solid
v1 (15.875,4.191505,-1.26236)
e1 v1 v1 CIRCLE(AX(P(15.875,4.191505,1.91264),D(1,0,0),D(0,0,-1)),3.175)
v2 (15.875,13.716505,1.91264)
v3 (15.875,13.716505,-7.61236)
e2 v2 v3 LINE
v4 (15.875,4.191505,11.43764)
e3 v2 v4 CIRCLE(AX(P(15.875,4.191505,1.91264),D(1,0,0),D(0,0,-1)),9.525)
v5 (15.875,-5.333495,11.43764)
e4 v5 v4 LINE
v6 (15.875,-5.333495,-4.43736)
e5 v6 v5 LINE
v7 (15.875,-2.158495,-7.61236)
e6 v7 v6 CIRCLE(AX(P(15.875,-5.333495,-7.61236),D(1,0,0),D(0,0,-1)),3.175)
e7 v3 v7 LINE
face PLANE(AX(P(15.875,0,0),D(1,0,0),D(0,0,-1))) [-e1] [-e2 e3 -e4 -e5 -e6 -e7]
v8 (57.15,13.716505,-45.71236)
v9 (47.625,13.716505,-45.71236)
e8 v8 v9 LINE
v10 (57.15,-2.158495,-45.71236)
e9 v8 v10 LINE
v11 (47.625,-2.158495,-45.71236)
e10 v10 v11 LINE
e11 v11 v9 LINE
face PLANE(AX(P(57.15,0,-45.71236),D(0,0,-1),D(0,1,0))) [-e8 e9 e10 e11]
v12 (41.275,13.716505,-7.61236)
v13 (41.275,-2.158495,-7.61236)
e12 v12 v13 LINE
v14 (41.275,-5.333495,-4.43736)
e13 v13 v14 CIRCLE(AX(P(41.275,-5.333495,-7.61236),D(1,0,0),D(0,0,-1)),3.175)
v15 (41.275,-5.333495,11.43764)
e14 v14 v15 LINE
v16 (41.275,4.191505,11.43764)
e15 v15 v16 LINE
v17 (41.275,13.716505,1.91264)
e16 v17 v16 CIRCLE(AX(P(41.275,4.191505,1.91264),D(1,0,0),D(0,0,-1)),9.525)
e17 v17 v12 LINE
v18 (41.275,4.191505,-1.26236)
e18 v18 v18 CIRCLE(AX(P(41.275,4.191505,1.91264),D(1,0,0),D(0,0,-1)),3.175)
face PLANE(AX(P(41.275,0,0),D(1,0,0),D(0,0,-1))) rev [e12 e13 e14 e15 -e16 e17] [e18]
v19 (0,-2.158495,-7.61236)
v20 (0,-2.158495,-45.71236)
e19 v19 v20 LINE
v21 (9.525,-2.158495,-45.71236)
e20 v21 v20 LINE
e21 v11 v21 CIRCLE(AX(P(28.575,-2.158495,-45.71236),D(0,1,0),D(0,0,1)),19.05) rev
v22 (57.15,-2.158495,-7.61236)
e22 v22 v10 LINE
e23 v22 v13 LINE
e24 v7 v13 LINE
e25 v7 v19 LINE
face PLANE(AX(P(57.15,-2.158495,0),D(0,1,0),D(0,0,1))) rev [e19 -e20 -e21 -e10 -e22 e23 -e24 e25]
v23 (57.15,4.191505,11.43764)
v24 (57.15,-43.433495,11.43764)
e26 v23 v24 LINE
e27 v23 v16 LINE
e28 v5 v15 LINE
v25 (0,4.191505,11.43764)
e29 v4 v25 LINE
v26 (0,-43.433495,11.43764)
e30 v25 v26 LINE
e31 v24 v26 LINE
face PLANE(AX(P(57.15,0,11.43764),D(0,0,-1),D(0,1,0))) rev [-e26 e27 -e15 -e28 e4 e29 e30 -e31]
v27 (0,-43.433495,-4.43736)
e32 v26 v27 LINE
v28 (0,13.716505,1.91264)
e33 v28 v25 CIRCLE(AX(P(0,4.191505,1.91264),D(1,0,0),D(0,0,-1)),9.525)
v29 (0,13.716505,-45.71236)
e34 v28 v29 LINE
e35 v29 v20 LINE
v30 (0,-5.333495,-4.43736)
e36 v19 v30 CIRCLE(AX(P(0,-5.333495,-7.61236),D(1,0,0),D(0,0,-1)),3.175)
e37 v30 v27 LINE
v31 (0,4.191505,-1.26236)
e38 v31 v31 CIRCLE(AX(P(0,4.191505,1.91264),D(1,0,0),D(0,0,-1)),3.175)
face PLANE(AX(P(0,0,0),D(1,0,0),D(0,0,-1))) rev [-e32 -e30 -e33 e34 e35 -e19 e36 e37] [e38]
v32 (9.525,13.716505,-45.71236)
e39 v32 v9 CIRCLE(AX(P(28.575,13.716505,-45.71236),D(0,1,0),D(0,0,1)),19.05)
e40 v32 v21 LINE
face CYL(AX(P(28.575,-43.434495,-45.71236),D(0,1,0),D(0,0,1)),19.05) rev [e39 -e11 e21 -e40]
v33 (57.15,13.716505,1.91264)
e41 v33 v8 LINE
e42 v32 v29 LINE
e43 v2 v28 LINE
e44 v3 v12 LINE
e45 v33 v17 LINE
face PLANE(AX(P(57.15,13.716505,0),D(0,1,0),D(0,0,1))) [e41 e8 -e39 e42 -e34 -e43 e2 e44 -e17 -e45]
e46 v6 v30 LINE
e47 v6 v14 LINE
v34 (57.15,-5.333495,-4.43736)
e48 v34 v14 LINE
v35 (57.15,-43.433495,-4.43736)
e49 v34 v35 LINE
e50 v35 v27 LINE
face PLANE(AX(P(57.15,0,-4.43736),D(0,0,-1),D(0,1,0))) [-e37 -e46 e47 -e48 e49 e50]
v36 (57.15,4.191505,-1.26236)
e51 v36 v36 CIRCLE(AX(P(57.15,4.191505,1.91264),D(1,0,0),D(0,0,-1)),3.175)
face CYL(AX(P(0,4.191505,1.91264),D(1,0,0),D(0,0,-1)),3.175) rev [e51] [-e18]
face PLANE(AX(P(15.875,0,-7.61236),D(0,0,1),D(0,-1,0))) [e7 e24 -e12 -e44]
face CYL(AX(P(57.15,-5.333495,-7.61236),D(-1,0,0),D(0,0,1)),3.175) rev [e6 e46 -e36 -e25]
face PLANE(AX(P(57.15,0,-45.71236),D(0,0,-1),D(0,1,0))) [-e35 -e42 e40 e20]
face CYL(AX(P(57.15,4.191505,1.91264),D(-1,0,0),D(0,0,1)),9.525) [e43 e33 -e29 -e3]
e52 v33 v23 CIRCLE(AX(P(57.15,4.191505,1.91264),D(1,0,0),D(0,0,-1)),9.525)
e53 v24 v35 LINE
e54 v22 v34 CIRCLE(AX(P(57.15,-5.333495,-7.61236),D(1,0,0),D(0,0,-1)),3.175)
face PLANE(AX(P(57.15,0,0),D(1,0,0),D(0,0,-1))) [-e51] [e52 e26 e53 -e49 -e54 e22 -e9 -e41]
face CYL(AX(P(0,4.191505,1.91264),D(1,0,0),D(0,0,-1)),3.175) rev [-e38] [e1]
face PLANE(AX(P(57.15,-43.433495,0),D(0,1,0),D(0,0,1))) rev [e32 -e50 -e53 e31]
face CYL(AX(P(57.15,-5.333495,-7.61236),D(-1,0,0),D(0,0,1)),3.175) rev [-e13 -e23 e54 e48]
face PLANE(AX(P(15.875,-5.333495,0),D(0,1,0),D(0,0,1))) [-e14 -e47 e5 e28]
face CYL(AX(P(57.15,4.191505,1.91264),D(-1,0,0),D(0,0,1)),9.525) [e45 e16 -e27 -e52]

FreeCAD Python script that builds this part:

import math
import FreeCAD as App
import Part
import Sketcher
Q = App.Units.Quantity

doc = App.newDocument("Part")
body = doc.addObject("PartDesign::Body", "Body")

sketch1 = body.newObject("Sketcher::SketchObject", "Sketch")
sketch1.AttachmentSupport = (doc.getObject("YZ_Plane"), [""])
sketch1.MapMode = "FlatFace"
sketch1.addGeometry(Part.LineSegment(App.Vector(14, -46, 0), App.Vector(14, 2, 0)), False)
sketch1.addGeometry(Part.ArcOfCircle(Part.Circle(App.Vector(4, 2, 0), App.Vector(0, 0, 1), 10), math.radians(0), math.radians(90)), False)
sketch1.addGeometry(Part.LineSegment(App.Vector(4, 11, 0), App.Vector(-43, 11, 0)), False)
sketch1.addGeometry(Part.LineSegment(App.Vector(-43, 11, 0), App.Vector(-43, -4, 0)), False)
sketch1.addGeometry(Part.LineSegment(App.Vector(-43, -4, 0), App.Vector(-2, -4, 0)), False)
sketch1.addGeometry(Part.LineSegment(App.Vector(-2, -4, 0), App.Vector(-2, -46, 0)), False)
sketch1.addGeometry(Part.LineSegment(App.Vector(-2, -46, 0), App.Vector(14, -46, 0)), False)
sketch1.addConstraint(Sketcher.Constraint("Tangent", 0, 2, 1, 1))
sketch1.addConstraint(Sketcher.Constraint("Tangent", 1, 2, 2, 1))
sketch1.addConstraint(Sketcher.Constraint("Coincident", 2, 2, 3, 1))
sketch1.addConstraint(Sketcher.Constraint("Coincident", 3, 2, 4, 1))
sketch1.addConstraint(Sketcher.Constraint("Coincident", 4, 2, 5, 1))
sketch1.addConstraint(Sketcher.Constraint("Coincident", 5, 2, 6, 1))
sketch1.addConstraint(Sketcher.Constraint("Coincident", 6, 2, 0, 1))
sketch1.addConstraint(Sketcher.Constraint("Vertical", 0))
sketch1.addConstraint(Sketcher.Constraint("Horizontal", 2))
sketch1.addConstraint(Sketcher.Constraint("Vertical", 3))
sketch1.addConstraint(Sketcher.Constraint("Horizontal", 4))
sketch1.addConstraint(Sketcher.Constraint("Vertical", 5))
sketch1.addConstraint(Sketcher.Constraint("Horizontal", 6))
sketch1.addConstraint(Sketcher.Constraint("Equal", 2, 0))
sketch1.addConstraint(Sketcher.Constraint("Equal", 6, 3))
sketch1.addConstraint(Sketcher.Constraint("Radius", 1, Q("0.375 in")))
sketch1.addConstraint(Sketcher.Constraint("DistanceX", 2, 2, 2, 1, Q("1.875 in")))
sketch1.addConstraint(Sketcher.Constraint("DistanceX", 4, 1, 4, 2, Q("1.625 in")))
sketch1.addConstraint(Sketcher.Constraint("DistanceY", -1, 1, 1, 3, 1.91264))
sketch1.addConstraint(Sketcher.Constraint("DistanceX", -1, 1, 1, 3, 4.191505))
pad1 = body.newObject("PartDesign::Pad", "Pad")
pad1.Profile = sketch1
pad1.Length = Q("2.25 in")

sketch2 = body.newObject("Sketcher::SketchObject", "Sketch001")
sketch2.AttachmentSupport = (doc.getObject("YZ_Plane"), [""])
sketch2.MapMode = "FlatFace"
sketch2.addGeometry(Part.LineSegment(App.Vector(-2.2, -4.4, 0), App.Vector(-5.3, -4.4, 0)), False)
sketch2.addGeometry(Part.ArcOfCircle(Part.Circle(App.Vector(-5.3, -7.6, 0), App.Vector(0, 0, 1), 3.2), math.radians(0), math.radians(90)), False)
sketch2.addGeometry(Part.LineSegment(App.Vector(-2.2, -7.6, 0), App.Vector(-2.2, -4.4, 0)), False)
sketch2.addConstraint(Sketcher.Constraint("Tangent", 0, 2, 1, 2))
sketch2.addConstraint(Sketcher.Constraint("Tangent", 1, 1, 2, 1))
sketch2.addConstraint(Sketcher.Constraint("Coincident", 2, 2, 0, 1))
sketch2.addConstraint(Sketcher.Constraint("Horizontal", 0))
sketch2.addConstraint(Sketcher.Constraint("Vertical", 2))
sketch2.addConstraint(Sketcher.Constraint("Radius", 1, Q("0.125 in")))
sketch2.addConstraint(Sketcher.Constraint("DistanceY", 1, 3, -1, 1, 7.61236))
sketch2.addConstraint(Sketcher.Constraint("DistanceX", 1, 3, -1, 1, 5.333495))
pad2 = body.newObject("PartDesign::Pad", "Pad001")
pad2.Profile = sketch2
pad2.Length = Q("2.25 in")

sketch3 = body.newObject("Sketcher::SketchObject", "Sketch002")
sketch3.AttachmentSupport = (doc.getObject("XZ_Plane"), [""])
sketch3.MapMode = "FlatFace"
sketch3.AttachmentOffset = App.Placement(App.Vector(0, 0, -13.716505), App.Rotation())
sketch3.addGeometry(Part.Circle(App.Vector(29, -46, 0), App.Vector(0, 0, 1), 19), False)
sketch3.addConstraint(Sketcher.Constraint("Diameter", 0, Q("1.5 in")))
sketch3.addConstraint(Sketcher.Constraint("DistanceX", -1, 1, 0, 3, Q("1.125 in")))
sketch3.addConstraint(Sketcher.Constraint("DistanceY", 0, 3, -1, 1, 45.71236))
pocket1 = body.newObject("PartDesign::Pocket", "Pocket")
pocket1.Profile = sketch3
pocket1.Type = "UpToFirst"
pocket1.Reversed = True

sketch4 = body.newObject("Sketcher::SketchObject", "Sketch003")
sketch4.AttachmentSupport = (doc.getObject("YZ_Plane"), [""])
sketch4.MapMode = "FlatFace"
sketch4.AttachmentOffset = App.Placement(App.Vector(0, 0, 1.625 * 25.4), App.Rotation())
sketch4.addGeometry(Part.LineSegment(App.Vector(-2.2, -7.6, 0), App.Vector(13.7, -7.6, 0)), False)
sketch4.addGeometry(Part.LineSegment(App.Vector(13.7, -7.6, 0), App.Vector(13.7, 1.9, 0)), False)
sketch4.addGeometry(Part.ArcOfCircle(Part.Circle(App.Vector(4.2, 1.9, 0), App.Vector(0, 0, 1), 9.5), math.radians(0), math.radians(90)), False)
sketch4.addGeometry(Part.LineSegment(App.Vector(4.2, 11.4, 0), App.Vector(-5.3, 11.4, 0)), False)
sketch4.addGeometry(Part.LineSegment(App.Vector(-5.3, 11.4, 0), App.Vector(-5.3, -4.4, 0)), False)
sketch4.addGeometry(Part.ArcOfCircle(Part.Circle(App.Vector(-5.3, -7.6, 0), App.Vector(0, 0, 1), 3.2), math.radians(0), math.radians(90)), False)
sketch4.addGeometry(Part.Circle(App.Vector(4.2, 1.9, 0), App.Vector(0, 0, 1), 3.2), False)
sketch4.addConstraint(Sketcher.Constraint("Coincident", 0, 2, 1, 1))
sketch4.addConstraint(Sketcher.Constraint("Tangent", 1, 2, 2, 1))
sketch4.addConstraint(Sketcher.Constraint("Tangent", 2, 2, 3, 1))
sketch4.addConstraint(Sketcher.Constraint("Coincident", 3, 2, 4, 1))
sketch4.addConstraint(Sketcher.Constraint("Coincident", 4, 2, 5, 2))
sketch4.addConstraint(Sketcher.Constraint("Coincident", 5, 1, 0, 1))
sketch4.addConstraint(Sketcher.Constraint("Horizontal", 0))
sketch4.addConstraint(Sketcher.Constraint("Vertical", 1))
sketch4.addConstraint(Sketcher.Constraint("Horizontal", 3))
sketch4.addConstraint(Sketcher.Constraint("Vertical", 4))
sketch4.addConstraint(Sketcher.Constraint("Coincident", 6, 3, 2, 3))
sketch4.addConstraint(Sketcher.Constraint("Equal", 5, 6))
sketch4.addConstraint(Sketcher.Constraint("Horizontal", 5, 3, 0, 2))
sketch4.addConstraint(Sketcher.Constraint("Vertical", 5, 3, 3, 2))
sketch4.addConstraint(Sketcher.Constraint("Equal", 3, 1))
sketch4.addConstraint(Sketcher.Constraint("Diameter", 6, Q("0.25 in")))
sketch4.addConstraint(Sketcher.Constraint("Radius", 2, Q("0.375 in")))
sketch4.addConstraint(Sketcher.Constraint("DistanceX", 0, 1, 0, 2, Q("0.625 in")))
sketch4.addConstraint(Sketcher.Constraint("DistanceY", -1, 1, 2, 3, 1.91264))
sketch4.addConstraint(Sketcher.Constraint("DistanceX", -1, 1, 2, 3, 4.191505))
pocket2 = body.newObject("PartDesign::Pocket", "Pocket001")
pocket2.Profile = sketch4
pocket2.Length = Q("1 in")

sketch5 = body.newObject("Sketcher::SketchObject", "Sketch004")
sketch5.AttachmentSupport = (doc.getObject("YZ_Plane"), [""])
sketch5.MapMode = "FlatFace"
sketch5.AttachmentOffset = App.Placement(App.Vector(0, 0, 2.25 * 25.4), App.Rotation())
sketch5.addGeometry(Part.Circle(App.Vector(4.2, 1.9, 0), App.Vector(0, 0, 1), 3.2), False)
sketch5.addConstraint(Sketcher.Constraint("Diameter", 0, Q("0.25 in")))
sketch5.addConstraint(Sketcher.Constraint("DistanceY", -1, 1, 0, 3, 1.91264))
sketch5.addConstraint(Sketcher.Constraint("DistanceX", -1, 1, 0, 3, 4.191505))
pocket3 = body.newObject("PartDesign::Pocket", "Pocket002")
pocket3.Profile = sketch5
pocket3.Type = "ThroughAll"

doc.recompute()
